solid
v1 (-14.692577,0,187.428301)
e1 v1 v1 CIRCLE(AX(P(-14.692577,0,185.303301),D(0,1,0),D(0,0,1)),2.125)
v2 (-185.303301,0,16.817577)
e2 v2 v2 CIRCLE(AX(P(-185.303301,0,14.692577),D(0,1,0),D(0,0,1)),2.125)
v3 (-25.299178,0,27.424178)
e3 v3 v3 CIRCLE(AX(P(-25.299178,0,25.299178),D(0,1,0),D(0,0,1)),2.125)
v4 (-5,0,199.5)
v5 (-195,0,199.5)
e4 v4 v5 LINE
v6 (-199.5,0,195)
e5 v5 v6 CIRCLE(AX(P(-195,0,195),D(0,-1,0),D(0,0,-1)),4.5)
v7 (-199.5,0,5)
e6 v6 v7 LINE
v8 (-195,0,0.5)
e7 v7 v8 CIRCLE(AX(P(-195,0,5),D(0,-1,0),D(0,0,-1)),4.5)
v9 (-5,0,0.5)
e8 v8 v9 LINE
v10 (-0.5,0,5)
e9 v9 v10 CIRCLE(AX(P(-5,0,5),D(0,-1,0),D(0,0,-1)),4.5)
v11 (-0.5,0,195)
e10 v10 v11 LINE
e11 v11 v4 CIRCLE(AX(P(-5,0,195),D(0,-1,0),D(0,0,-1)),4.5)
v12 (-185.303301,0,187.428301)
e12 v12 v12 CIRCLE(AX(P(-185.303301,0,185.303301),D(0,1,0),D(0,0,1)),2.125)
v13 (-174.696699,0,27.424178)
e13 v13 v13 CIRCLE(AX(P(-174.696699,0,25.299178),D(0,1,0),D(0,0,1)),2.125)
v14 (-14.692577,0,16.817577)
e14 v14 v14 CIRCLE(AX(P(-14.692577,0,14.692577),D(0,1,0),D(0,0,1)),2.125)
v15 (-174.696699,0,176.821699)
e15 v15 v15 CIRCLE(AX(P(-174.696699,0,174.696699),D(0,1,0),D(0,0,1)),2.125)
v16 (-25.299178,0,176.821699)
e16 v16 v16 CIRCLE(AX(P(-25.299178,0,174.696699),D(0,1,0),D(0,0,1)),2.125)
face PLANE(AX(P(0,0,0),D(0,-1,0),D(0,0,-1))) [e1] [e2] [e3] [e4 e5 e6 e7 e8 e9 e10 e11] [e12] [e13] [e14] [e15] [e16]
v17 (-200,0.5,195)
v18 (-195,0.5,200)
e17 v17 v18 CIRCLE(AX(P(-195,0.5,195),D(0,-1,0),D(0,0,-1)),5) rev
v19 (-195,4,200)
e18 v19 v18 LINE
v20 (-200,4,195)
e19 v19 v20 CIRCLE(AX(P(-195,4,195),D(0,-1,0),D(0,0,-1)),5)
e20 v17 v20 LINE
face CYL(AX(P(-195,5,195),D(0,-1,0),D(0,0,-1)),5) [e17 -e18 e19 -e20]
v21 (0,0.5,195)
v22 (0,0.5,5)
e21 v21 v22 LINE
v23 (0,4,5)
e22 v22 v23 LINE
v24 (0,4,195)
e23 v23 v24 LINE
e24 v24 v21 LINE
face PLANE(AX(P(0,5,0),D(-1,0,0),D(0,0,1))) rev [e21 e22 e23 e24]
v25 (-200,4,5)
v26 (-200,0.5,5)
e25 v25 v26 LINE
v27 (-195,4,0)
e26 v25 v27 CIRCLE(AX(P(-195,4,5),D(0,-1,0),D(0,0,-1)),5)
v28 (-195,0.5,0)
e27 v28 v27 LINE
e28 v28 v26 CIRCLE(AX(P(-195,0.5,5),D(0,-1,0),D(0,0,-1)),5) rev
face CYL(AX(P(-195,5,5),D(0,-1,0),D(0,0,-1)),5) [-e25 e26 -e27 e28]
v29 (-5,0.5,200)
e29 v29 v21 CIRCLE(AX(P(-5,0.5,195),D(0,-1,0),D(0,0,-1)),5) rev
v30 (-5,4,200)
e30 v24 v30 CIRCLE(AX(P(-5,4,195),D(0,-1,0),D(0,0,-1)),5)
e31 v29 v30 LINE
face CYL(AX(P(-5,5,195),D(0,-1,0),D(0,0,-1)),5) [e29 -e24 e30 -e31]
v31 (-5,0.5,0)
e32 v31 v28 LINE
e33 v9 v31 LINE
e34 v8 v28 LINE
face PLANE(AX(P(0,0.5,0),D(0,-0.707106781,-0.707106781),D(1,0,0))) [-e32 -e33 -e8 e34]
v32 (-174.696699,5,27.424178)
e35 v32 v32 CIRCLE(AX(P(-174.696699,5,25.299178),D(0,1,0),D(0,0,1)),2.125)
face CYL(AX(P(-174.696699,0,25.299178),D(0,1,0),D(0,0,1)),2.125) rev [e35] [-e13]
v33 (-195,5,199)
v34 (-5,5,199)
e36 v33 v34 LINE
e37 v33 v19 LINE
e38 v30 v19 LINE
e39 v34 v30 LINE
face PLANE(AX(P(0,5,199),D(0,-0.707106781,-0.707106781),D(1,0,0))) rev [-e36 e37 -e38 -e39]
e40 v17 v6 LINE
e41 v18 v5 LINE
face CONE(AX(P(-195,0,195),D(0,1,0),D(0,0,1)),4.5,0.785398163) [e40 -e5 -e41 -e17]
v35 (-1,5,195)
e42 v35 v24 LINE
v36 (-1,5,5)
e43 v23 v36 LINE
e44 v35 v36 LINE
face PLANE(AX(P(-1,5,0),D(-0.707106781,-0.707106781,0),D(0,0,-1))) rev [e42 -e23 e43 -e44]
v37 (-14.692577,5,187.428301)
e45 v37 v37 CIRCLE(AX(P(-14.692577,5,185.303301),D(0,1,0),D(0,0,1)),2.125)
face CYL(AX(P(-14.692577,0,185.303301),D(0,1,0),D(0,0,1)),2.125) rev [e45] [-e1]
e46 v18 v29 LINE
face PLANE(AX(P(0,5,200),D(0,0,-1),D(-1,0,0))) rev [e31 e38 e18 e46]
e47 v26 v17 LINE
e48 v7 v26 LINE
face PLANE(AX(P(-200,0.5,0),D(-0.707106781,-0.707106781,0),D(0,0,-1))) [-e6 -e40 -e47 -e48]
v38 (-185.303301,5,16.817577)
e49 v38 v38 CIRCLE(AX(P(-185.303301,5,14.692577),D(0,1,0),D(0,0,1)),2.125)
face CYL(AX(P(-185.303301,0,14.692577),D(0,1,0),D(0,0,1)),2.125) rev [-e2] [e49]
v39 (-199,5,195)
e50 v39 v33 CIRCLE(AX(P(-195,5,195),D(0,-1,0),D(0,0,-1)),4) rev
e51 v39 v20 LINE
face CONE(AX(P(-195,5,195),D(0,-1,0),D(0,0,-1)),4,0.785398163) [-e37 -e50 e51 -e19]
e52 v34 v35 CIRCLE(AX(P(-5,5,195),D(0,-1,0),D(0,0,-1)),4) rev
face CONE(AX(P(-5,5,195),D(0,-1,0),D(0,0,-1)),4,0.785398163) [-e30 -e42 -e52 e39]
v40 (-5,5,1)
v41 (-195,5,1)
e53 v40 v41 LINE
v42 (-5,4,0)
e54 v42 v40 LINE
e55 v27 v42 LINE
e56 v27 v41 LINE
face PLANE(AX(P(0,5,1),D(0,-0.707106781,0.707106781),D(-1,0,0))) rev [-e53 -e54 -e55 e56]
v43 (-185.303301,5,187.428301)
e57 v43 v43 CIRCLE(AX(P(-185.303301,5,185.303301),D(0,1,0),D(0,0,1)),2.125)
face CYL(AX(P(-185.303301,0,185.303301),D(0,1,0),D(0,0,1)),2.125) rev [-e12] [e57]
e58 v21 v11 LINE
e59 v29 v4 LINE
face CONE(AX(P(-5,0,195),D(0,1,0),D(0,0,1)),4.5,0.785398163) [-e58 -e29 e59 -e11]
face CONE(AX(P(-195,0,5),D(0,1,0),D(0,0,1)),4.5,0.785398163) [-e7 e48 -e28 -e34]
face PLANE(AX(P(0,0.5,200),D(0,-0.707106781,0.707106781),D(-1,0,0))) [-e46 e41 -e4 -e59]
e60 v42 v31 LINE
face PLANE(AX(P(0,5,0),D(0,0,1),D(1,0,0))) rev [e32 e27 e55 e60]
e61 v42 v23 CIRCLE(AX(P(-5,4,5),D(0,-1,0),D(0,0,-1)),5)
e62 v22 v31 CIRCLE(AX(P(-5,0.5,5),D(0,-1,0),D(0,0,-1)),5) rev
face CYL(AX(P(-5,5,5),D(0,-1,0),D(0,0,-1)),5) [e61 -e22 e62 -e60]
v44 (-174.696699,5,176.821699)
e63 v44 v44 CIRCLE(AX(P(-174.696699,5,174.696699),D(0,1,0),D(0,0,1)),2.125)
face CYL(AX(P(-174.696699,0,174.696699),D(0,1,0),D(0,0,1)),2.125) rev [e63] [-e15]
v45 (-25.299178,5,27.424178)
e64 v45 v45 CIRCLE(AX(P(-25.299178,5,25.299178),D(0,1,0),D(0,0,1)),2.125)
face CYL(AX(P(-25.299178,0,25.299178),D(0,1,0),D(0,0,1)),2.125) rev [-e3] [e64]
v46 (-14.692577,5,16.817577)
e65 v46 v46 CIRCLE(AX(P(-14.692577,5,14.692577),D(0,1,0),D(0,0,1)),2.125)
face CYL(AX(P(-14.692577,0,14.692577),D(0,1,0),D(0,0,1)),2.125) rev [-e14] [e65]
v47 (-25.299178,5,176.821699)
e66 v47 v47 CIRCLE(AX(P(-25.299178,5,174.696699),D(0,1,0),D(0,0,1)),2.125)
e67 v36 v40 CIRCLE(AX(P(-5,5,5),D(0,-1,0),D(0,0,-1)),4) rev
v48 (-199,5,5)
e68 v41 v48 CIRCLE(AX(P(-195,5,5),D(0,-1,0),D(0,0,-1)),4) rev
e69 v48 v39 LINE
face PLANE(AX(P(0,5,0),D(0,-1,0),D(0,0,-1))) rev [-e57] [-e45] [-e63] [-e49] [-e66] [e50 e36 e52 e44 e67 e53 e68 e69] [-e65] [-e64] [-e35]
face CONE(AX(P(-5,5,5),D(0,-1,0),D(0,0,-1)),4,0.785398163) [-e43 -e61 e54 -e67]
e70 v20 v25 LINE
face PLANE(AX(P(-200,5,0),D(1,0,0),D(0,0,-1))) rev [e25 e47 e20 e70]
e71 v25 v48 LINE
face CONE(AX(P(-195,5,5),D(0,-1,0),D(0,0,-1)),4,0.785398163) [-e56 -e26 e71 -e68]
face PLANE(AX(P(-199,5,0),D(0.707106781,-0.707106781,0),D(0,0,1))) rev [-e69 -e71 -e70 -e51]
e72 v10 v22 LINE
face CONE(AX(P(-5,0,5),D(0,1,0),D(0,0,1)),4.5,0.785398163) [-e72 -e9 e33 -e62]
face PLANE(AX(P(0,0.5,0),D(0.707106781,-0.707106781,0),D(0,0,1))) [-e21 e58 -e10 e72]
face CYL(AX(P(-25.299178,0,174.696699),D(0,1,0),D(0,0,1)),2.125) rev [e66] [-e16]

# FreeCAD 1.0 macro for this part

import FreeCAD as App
import Part
import Sketcher

V = App.Vector


def edges_at(feature, points):
    """Names of the edges that pass closest to the given points."""
    edges = feature.Shape.Edges
    near = lambda p: min(range(len(edges)), key=lambda i: edges[i].distToShape(Part.Vertex(*p))[0])
    return sorted({f"Edge{near(p) + 1}" for p in points})


def add_polygon(sketch, points):
    """Adds a closed chain of lines whose ends are joined by coincident constraints."""
    first, n = sketch.GeometryCount, len(points)
    for a, b in zip(points, points[1:] + points[:1]):
        sketch.addGeometry(Part.LineSegment(App.Vector(*a, 0), App.Vector(*b, 0)), False)
    for i in range(n):
        sketch.addConstraint(Sketcher.Constraint("Coincident", first + i, 2, first + (i + 1) % n, 1))

doc = App.newDocument("Part")
body = doc.addObject("PartDesign::Body", "Body")

sketch1 = doc.addObject("Sketcher::SketchObject", "Sketch")
body.addObject(sketch1)
sketch1.AttachmentSupport = (doc.XZ_Plane, [""])
sketch1.MapMode = "FlatFace"
add_polygon(sketch1, [(-200, 0), (-200, 200), (0, 200), (0, 0)])
sketch1.addConstraint(Sketcher.Constraint("Vertical", 0))
sketch1.addConstraint(Sketcher.Constraint("Horizontal", 1))
sketch1.addConstraint(Sketcher.Constraint("Vertical", 2))
sketch1.addConstraint(Sketcher.Constraint("Horizontal", 3))
sketch1.addConstraint(Sketcher.Constraint("Coincident", 2, 2, -1, 1))
sketch1.addConstraint(Sketcher.Constraint("Equal", 3, 0))
sketch1.addConstraint(Sketcher.Constraint("DistanceX", 1, 1, 1, 2, 200.0))
pad1 = doc.addObject("PartDesign::Pad", "Pad")
body.addObject(pad1)
pad1.Profile = sketch1
pad1.Length = 5
pad1.Reversed = True

sketch2 = doc.addObject("Sketcher::SketchObject", "Sketch001")
body.addObject(sketch2)
sketch2.AttachmentSupport = (doc.XZ_Plane, [""])
sketch2.MapMode = "FlatFace"
sketch2.AttachmentOffset = App.Placement(V(0, 0, -5), App.Rotation())
sketch2.addGeometry(Part.Circle(V(-185.303301, 185.303301, 0), V(0, 0, 1), 2.125), False)
sketch2.addGeometry(Part.Circle(V(-174.696699, 174.696699, 0), V(0, 0, 1), 2.125), False)
sketch2.addGeometry(Part.Circle(V(-185.303301, 14.692577, 0), V(0, 0, 1), 2.125), False)
sketch2.addGeometry(Part.Circle(V(-174.696699, 25.299178, 0), V(0, 0, 1), 2.125), False)
sketch2.addGeometry(Part.Circle(V(-14.692577, 14.692577, 0), V(0, 0, 1), 2.125), False)
sketch2.addGeometry(Part.Circle(V(-25.299178, 25.299178, 0), V(0, 0, 1), 2.125), False)
sketch2.addGeometry(Part.Circle(V(-14.692577, 185.303301, 0), V(0, 0, 1), 2.125), False)
sketch2.addGeometry(Part.Circle(V(-25.299178, 174.696699, 0), V(0, 0, 1), 2.125), False)
sketch2.addConstraint(Sketcher.Constraint("Equal", 0, 1))
sketch2.addConstraint(Sketcher.Constraint("Equal", 1, 2))
sketch2.addConstraint(Sketcher.Constraint("Equal", 2, 3))
sketch2.addConstraint(Sketcher.Constraint("Equal", 3, 4))
sketch2.addConstraint(Sketcher.Constraint("Equal", 4, 5))
sketch2.addConstraint(Sketcher.Constraint("Equal", 5, 6))
sketch2.addConstraint(Sketcher.Constraint("Equal", 6, 7))
sketch2.addConstraint(Sketcher.Constraint("Horizontal", 2, 3, 4, 3))
sketch2.addConstraint(Sketcher.Constraint("Horizontal", 3, 3, 5, 3))
sketch2.addConstraint(Sketcher.Constraint("Horizontal", 0, 3, 6, 3))
sketch2.addConstraint(Sketcher.Constraint("Horizontal", 1, 3, 7, 3))
sketch2.addConstraint(Sketcher.Constraint("Vertical", 0, 3, 2, 3))
sketch2.addConstraint(Sketcher.Constraint("Vertical", 1, 3, 3, 3))
sketch2.addConstraint(Sketcher.Constraint("Vertical", 4, 3, 6, 3))
sketch2.addConstraint(Sketcher.Constraint("Vertical", 5, 3, 7, 3))
sketch2.addConstraint(Sketcher.Constraint("Diameter", 0, 4.25))
sketch2.addConstraint(Sketcher.Constraint("DistanceX", 0, 3, -1, 1, 185.303301))
sketch2.addConstraint(Sketcher.Constraint("DistanceY", -1, 1, 0, 3, 185.303301))
sketch2.addConstraint(Sketcher.Constraint("DistanceX", 1, 3, -1, 1, 174.696699))
sketch2.addConstraint(Sketcher.Constraint("DistanceY", -1, 1, 1, 3, 174.696699))
sketch2.addConstraint(Sketcher.Constraint("DistanceY", 2, 3, 3, 3, 10.606602))
sketch2.addConstraint(Sketcher.Constraint("DistanceX", 5, 3, 4, 3, 10.606602))
sketch2.addConstraint(Sketcher.Constraint("DistanceY", -1, 1, 3, 3, 25.299178))
sketch2.addConstraint(Sketcher.Constraint("DistanceX", 5, 3, -1, 1, 25.299178))
pocket1 = doc.addObject("PartDesign::Pocket", "Pocket")
body.addObject(pocket1)
pocket1.Profile = sketch2
pocket1.Type = "ThroughAll"
pocket1.Reversed = True
doc.recompute()

fillet = doc.addObject("PartDesign::Fillet", "Fillet")
body.addObject(fillet)
fillet.Base = (pocket1, edges_at(pocket1, [
    (0, 2.5, 200),
    (-200, 2.5, 200),
    (-200, 2.5, 0),
    (0, 2.5, 0),
]))
fillet.Radius = 5
doc.recompute()

chamfer = doc.addObject("PartDesign::Chamfer", "Chamfer")
body.addObject(chamfer)
chamfer.Base = (fillet, edges_at(fillet, [
    (-200, 5, 100),
    (-100, 5, 0),
    (0, 5, 100),
    (-100, 5, 200),
    (-198.536, 5, 198.536),
    (-1.464, 5, 198.536),
    (-1.464, 5, 1.464),
    (-198.536, 5, 1.464),
]))
chamfer.Size = 1
doc.recompute()

chamfer2 = doc.addObject("PartDesign::Chamfer", "Chamfer001")
body.addObject(chamfer2)
chamfer2.Base = (chamfer, edges_at(chamfer, [
    (-200, 0, 100),
    (0, 0, 100),
    (-100, 0, 200),
    (-100, 0, 0),
    (-198.536, 0, 198.536),
    (-1.464, 0, 198.536),
    (-1.464, 0, 1.464),
    (-198.536, 0, 1.464),
]))
chamfer2.Size = 0.5

doc.recompute()
